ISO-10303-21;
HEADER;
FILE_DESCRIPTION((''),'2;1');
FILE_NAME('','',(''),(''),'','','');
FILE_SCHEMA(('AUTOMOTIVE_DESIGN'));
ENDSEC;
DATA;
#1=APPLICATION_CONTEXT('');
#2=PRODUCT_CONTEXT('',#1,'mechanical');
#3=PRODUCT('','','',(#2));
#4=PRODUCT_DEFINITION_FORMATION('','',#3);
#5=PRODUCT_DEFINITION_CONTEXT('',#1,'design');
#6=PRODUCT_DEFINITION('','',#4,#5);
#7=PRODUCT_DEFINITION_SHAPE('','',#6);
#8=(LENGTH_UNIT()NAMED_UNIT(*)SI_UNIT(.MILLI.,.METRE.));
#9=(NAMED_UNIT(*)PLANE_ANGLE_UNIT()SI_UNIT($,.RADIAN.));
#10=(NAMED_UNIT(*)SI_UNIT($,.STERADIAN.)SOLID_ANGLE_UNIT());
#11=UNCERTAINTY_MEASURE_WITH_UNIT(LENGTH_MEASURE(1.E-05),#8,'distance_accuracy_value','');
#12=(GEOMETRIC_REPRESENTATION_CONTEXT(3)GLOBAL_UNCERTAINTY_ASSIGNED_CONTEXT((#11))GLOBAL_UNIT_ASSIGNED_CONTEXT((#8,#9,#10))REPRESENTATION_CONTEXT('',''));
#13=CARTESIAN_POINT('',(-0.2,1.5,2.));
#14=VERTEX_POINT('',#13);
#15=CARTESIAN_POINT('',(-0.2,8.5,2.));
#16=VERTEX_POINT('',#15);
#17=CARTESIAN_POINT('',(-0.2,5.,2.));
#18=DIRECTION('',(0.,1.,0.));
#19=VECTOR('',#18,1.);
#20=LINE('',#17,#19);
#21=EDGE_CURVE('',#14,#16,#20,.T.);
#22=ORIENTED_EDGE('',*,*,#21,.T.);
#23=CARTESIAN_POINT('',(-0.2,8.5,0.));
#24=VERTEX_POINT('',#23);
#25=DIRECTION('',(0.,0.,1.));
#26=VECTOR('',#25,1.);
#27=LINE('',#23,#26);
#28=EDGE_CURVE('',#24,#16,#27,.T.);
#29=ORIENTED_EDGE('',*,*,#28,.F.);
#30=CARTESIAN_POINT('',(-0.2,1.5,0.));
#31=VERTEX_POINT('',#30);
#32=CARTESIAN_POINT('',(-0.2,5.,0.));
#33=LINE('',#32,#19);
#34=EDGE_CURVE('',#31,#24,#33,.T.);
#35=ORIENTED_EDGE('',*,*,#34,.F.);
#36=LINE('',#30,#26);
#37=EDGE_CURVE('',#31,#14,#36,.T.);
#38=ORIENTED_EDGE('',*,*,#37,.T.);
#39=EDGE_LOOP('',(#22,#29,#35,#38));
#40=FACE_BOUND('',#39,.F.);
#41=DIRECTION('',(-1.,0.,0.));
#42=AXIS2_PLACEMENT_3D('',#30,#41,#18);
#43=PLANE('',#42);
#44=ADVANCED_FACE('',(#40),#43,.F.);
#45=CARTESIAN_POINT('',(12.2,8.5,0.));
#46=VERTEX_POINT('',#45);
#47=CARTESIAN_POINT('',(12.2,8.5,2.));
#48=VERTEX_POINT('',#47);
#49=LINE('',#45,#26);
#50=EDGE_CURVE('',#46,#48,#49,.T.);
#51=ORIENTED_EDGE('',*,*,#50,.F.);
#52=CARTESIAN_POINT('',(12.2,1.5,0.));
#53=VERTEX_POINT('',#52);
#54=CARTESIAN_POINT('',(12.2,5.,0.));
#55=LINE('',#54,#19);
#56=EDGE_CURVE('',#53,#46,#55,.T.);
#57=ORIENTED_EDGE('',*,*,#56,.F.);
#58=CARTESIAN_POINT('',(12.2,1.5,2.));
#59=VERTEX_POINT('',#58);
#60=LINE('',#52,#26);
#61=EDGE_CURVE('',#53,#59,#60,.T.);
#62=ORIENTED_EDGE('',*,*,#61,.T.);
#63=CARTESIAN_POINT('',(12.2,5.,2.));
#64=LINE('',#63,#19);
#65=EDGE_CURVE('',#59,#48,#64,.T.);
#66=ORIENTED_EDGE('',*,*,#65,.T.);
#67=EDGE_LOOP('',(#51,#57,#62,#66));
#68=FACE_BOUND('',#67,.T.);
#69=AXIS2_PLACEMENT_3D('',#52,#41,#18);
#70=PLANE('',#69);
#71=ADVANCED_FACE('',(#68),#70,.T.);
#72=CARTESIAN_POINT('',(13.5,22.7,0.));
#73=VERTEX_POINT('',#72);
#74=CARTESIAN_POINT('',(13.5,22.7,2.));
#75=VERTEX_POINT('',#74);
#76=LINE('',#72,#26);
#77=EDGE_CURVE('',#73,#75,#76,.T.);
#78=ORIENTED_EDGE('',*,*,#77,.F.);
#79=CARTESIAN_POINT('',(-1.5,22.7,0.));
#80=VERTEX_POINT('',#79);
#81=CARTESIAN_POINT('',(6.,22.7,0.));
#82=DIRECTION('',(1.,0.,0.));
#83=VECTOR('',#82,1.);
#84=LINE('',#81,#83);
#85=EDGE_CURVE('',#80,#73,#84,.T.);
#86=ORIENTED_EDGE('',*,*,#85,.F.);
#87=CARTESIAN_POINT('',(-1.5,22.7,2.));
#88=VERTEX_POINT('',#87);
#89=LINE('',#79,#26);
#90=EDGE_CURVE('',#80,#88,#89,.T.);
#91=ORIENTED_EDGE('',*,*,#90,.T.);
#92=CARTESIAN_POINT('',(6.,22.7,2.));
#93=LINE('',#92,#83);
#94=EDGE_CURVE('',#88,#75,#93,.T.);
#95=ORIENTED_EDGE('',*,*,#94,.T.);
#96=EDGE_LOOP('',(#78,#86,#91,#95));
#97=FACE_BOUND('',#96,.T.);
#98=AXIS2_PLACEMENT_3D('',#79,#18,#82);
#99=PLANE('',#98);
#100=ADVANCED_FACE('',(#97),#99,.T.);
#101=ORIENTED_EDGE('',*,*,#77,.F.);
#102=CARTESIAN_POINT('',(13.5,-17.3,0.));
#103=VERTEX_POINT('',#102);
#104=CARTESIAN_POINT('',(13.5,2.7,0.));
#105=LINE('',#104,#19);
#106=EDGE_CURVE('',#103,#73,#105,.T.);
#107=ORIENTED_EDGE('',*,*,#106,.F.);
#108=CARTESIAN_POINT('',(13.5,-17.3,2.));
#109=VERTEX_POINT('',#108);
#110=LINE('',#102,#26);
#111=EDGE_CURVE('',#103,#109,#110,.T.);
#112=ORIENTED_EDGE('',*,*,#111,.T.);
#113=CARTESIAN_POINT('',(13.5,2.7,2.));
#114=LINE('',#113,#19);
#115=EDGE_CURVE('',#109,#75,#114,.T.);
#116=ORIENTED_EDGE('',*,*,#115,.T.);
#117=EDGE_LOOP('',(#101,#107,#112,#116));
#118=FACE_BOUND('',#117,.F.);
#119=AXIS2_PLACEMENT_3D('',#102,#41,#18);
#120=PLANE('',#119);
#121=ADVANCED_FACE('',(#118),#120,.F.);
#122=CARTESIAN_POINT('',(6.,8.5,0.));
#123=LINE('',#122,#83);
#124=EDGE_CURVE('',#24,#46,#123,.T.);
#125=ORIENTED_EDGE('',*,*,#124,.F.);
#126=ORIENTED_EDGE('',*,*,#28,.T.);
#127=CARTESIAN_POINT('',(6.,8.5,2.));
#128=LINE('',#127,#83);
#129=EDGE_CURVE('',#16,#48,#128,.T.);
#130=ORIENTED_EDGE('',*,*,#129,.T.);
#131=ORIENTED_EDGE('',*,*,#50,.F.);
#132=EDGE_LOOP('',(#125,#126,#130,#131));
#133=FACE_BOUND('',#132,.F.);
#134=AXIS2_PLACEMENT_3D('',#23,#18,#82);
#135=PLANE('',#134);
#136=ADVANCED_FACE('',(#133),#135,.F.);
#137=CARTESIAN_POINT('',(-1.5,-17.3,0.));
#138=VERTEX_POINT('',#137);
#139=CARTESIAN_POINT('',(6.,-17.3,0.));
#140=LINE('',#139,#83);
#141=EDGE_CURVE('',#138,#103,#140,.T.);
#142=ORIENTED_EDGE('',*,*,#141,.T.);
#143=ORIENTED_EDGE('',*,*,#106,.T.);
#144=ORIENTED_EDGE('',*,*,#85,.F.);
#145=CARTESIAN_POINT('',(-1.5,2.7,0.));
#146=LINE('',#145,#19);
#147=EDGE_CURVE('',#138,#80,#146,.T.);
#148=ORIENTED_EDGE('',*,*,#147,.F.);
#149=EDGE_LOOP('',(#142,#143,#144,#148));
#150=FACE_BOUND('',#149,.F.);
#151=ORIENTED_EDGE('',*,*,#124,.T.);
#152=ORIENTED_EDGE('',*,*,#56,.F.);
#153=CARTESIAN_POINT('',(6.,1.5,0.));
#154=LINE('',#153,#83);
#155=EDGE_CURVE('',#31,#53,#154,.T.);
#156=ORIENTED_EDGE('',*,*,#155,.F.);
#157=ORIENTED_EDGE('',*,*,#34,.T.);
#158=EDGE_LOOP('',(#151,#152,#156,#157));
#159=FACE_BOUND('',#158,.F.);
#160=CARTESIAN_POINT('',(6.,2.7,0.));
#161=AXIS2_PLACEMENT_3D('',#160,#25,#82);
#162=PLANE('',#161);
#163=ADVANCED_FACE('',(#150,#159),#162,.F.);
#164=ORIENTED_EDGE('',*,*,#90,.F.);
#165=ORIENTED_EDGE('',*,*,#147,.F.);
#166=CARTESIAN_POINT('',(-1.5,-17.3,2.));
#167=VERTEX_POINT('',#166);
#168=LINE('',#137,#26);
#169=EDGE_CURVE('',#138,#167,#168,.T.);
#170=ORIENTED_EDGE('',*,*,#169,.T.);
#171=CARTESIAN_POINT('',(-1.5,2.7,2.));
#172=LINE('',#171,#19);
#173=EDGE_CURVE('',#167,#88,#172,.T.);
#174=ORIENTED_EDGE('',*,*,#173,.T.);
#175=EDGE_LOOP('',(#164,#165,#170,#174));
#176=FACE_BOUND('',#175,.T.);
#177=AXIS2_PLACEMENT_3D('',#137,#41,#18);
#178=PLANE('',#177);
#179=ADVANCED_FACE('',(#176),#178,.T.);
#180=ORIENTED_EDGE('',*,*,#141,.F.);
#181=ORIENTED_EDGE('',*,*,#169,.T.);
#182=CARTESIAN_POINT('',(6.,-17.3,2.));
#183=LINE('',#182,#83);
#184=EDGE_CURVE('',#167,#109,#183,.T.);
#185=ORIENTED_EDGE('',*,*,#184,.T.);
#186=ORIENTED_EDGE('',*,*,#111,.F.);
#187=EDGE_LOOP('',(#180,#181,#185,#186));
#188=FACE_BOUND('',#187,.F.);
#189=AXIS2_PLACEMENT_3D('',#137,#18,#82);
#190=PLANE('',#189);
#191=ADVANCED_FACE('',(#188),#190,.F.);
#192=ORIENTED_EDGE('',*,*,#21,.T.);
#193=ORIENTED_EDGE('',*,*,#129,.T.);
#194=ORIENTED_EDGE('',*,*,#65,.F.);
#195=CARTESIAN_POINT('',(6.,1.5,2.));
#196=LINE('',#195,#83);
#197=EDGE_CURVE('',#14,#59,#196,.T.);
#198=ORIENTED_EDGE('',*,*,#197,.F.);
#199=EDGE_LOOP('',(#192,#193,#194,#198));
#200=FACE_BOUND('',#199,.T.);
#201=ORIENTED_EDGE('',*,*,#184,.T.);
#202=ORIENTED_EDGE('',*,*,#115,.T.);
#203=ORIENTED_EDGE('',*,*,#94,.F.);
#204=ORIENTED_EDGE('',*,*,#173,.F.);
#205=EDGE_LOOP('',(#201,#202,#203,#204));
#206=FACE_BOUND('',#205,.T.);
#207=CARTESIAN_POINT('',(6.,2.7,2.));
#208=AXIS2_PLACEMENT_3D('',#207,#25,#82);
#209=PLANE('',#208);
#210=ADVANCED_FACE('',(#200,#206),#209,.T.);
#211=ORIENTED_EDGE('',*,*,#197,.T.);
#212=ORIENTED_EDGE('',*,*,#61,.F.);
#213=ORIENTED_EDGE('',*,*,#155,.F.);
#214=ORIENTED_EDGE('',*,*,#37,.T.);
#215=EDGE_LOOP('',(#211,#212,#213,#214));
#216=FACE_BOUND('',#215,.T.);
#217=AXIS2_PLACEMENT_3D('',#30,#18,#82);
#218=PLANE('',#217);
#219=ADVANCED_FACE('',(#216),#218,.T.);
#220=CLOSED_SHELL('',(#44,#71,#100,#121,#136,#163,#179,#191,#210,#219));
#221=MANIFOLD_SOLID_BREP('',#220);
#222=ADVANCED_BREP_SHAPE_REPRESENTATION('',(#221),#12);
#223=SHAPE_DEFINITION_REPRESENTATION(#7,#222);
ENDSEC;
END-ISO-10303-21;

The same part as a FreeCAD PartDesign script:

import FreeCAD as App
import Part
import Sketcher
Q = App.Units.Quantity

doc = App.newDocument("Part")
body = doc.addObject("PartDesign::Body", "Body")

# Sketch on XY plane
sketch1 = body.newObject("Sketcher::SketchObject", "Sketch")
sketch1.AttachmentSupport = (doc.getObject("XY_Plane"), [""])
sketch1.MapMode = "FlatFace"
sketch1.addGeometry([
    Part.LineSegment(App.Vector(-0.2, 8.5, 0), App.Vector(-0.2, 1.5, 0)),
    Part.LineSegment(App.Vector(-0.2, 1.5, 0), App.Vector(12.2, 1.5, 0)),
    Part.LineSegment(App.Vector(12.2, 1.5, 0), App.Vector(12.2, 8.5, 0)),
    Part.LineSegment(App.Vector(12.2, 8.5, 0), App.Vector(-0.2, 8.5, 0)),
], False)
sketch1.addConstraint([
    Sketcher.Constraint("Coincident", 0, 2, 1, 1),
    Sketcher.Constraint("Coincident", 1, 2, 2, 1),
    Sketcher.Constraint("Coincident", 2, 2, 3, 1),
    Sketcher.Constraint("Coincident", 3, 2, 0, 1),
    Sketcher.Constraint("Vertical", 0),
    Sketcher.Constraint("Horizontal", 1),
    Sketcher.Constraint("Vertical", 2),
    Sketcher.Constraint("Horizontal", 3),
    Sketcher.Constraint("DistanceY", 0, 2, 0, 1, Q("7 mm")),
    Sketcher.Constraint("DistanceX", 1, 1, 1, 2, Q("12.4 mm")),
    Sketcher.Constraint("DistanceX", 0, 2, -1, 1, Q("0.2 mm")),
    Sketcher.Constraint("DistanceY", -1, 1, 0, 2, Q("1.5 mm")),
])
pad1 = body.newObject("PartDesign::Pad", "Pad")
pad1.Profile = sketch1
pad1.Length = 2
body2 = doc.addObject("PartDesign::Body", "Body001")

# Sketch on XY plane
sketch2 = body2.newObject("Sketcher::SketchObject", "Sketch001")
sketch2.AttachmentSupport = (doc.getObject("XY_Plane001"), [""])
sketch2.MapMode = "FlatFace"
sketch2.addGeometry([
    Part.LineSegment(App.Vector(-1.5, 22.7, 0), App.Vector(-1.5, -17.3, 0)),
    Part.LineSegment(App.Vector(-1.5, -17.3, 0), App.Vector(13.5, -17.3, 0)),
    Part.LineSegment(App.Vector(13.5, -17.3, 0), App.Vector(13.5, 22.7, 0)),
    Part.LineSegment(App.Vector(13.5, 22.7, 0), App.Vector(-1.5, 22.7, 0)),
], False)
sketch2.addConstraint([
    Sketcher.Constraint("Coincident", 0, 2, 1, 1),
    Sketcher.Constraint("Coincident", 1, 2, 2, 1),
    Sketcher.Constraint("Coincident", 2, 2, 3, 1),
    Sketcher.Constraint("Coincident", 3, 2, 0, 1),
    Sketcher.Constraint("Vertical", 0),
    Sketcher.Constraint("Horizontal", 1),
    Sketcher.Constraint("Vertical", 2),
    Sketcher.Constraint("Horizontal", 3),
    Sketcher.Constraint("DistanceX", 1, 1, 1, 2, Q("15 mm")),
    Sketcher.Constraint("DistanceY", 0, 2, 0, 1, Q("40 mm")),
    Sketcher.Constraint("DistanceX", 0, 2, -1, 1, Q("1.5 mm")),
    Sketcher.Constraint("DistanceY", 0, 2, -1, 1, Q("17.3 mm")),
])
pad2 = body2.newObject("PartDesign::Pad", "Pad001")
pad2.Profile = sketch2
pad2.Length = 2
doc.recompute()

boolean = body2.newObject("PartDesign::Boolean", "Boolean")
boolean.Type = "Cut"
boolean.addObjects([body])

doc.recompute()
